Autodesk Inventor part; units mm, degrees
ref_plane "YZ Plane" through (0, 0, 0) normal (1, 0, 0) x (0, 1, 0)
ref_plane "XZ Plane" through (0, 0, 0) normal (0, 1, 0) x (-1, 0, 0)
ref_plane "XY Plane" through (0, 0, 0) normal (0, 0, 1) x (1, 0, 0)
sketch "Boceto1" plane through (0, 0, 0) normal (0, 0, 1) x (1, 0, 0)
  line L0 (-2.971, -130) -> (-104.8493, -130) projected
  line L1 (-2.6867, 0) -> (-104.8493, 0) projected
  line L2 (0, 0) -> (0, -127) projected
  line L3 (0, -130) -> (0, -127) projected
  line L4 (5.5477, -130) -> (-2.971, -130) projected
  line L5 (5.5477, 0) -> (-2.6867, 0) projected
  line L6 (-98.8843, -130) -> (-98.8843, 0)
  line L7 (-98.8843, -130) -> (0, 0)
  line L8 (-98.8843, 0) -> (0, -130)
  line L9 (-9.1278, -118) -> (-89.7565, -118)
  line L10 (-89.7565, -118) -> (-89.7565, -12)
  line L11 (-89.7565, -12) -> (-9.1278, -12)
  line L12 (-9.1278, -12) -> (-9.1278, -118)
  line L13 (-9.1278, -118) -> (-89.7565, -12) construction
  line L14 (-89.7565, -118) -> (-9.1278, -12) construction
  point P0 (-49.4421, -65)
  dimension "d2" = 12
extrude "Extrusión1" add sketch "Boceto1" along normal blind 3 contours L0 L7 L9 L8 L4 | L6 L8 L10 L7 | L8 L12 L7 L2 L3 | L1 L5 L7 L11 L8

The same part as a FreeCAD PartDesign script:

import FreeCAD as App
import Part
import Sketcher
Q = App.Units.Quantity


def add_polygon(sketch, points):
    """Adds a closed chain of lines whose ends are joined by coincident constraints."""
    first, n = sketch.GeometryCount, len(points)
    for a, b in zip(points, points[1:] + points[:1]):
        sketch.addGeometry(Part.LineSegment(App.Vector(*a, 0), App.Vector(*b, 0)), False)
    for i in range(n):
        sketch.addConstraint(Sketcher.Constraint("Coincident", first + i, 2, first + (i + 1) % n, 1))

doc = App.newDocument("Part")
params = doc.addObject("Spreadsheet::Sheet", "Params")
for row, (alias, value) in enumerate([
    ("sketch1_height", "130 mm"),
    ("pad1_length", "3 mm"),
], start=1):
    params.set(f"A{row}", alias)
    params.set(f"B{row}", "=" + value)
    params.setAlias(f"B{row}", alias)

body = doc.addObject("PartDesign::Body", "Body")

# Sketch on XY plane
sketch1 = body.newObject("Sketcher::SketchObject", "Sketch")
sketch1.AttachmentSupport = (doc.getObject("XY_Plane"), [""])
sketch1.MapMode = "FlatFace"
add_polygon(sketch1, [(-99, -130), (0, -130), (0, 0), (-99, 0)])  # lines 0-3
add_polygon(sketch1, [(-9, -118), (-90, -118), (-90, -12), (-9, -12)])  # lines 4-7
sketch1.addConstraint([
    Sketcher.Constraint("Horizontal", 0),
    Sketcher.Constraint("Vertical", 1),
    Sketcher.Constraint("Horizontal", 2),
    Sketcher.Constraint("Vertical", 3),
    Sketcher.Constraint("Horizontal", 4),
    Sketcher.Constraint("Vertical", 5),
    Sketcher.Constraint("Horizontal", 6),
    Sketcher.Constraint("Vertical", 7),
    Sketcher.Constraint("Coincident", 1, 2, -1, 1),
    Sketcher.Constraint("DistanceY", 5, 2, -1, 1, Q("12 mm")),
    Sketcher.Constraint("DistanceY", 3, 2, 4, 2, Q("12 mm")),
    Sketcher.Constraint("DistanceY", 1, 1, 1, 2, Q("130 mm")),
    Sketcher.Constraint("DistanceX", 0, 1, 0, 2, Q("98.8843 mm")),
    Sketcher.Constraint("DistanceX", 4, 2, 4, 1, Q("80.6287 mm")),
    Sketcher.Constraint("DistanceX", 4, 2, -1, 1, Q("89.7565 mm")),
])
sketch1.setExpression("Constraints[19]", "Params.sketch1_height")
pad1 = body.newObject("PartDesign::Pad", "Pad")
pad1.Profile = sketch1
pad1.setExpression("Length", "Params.pad1_length")

doc.recompute()
